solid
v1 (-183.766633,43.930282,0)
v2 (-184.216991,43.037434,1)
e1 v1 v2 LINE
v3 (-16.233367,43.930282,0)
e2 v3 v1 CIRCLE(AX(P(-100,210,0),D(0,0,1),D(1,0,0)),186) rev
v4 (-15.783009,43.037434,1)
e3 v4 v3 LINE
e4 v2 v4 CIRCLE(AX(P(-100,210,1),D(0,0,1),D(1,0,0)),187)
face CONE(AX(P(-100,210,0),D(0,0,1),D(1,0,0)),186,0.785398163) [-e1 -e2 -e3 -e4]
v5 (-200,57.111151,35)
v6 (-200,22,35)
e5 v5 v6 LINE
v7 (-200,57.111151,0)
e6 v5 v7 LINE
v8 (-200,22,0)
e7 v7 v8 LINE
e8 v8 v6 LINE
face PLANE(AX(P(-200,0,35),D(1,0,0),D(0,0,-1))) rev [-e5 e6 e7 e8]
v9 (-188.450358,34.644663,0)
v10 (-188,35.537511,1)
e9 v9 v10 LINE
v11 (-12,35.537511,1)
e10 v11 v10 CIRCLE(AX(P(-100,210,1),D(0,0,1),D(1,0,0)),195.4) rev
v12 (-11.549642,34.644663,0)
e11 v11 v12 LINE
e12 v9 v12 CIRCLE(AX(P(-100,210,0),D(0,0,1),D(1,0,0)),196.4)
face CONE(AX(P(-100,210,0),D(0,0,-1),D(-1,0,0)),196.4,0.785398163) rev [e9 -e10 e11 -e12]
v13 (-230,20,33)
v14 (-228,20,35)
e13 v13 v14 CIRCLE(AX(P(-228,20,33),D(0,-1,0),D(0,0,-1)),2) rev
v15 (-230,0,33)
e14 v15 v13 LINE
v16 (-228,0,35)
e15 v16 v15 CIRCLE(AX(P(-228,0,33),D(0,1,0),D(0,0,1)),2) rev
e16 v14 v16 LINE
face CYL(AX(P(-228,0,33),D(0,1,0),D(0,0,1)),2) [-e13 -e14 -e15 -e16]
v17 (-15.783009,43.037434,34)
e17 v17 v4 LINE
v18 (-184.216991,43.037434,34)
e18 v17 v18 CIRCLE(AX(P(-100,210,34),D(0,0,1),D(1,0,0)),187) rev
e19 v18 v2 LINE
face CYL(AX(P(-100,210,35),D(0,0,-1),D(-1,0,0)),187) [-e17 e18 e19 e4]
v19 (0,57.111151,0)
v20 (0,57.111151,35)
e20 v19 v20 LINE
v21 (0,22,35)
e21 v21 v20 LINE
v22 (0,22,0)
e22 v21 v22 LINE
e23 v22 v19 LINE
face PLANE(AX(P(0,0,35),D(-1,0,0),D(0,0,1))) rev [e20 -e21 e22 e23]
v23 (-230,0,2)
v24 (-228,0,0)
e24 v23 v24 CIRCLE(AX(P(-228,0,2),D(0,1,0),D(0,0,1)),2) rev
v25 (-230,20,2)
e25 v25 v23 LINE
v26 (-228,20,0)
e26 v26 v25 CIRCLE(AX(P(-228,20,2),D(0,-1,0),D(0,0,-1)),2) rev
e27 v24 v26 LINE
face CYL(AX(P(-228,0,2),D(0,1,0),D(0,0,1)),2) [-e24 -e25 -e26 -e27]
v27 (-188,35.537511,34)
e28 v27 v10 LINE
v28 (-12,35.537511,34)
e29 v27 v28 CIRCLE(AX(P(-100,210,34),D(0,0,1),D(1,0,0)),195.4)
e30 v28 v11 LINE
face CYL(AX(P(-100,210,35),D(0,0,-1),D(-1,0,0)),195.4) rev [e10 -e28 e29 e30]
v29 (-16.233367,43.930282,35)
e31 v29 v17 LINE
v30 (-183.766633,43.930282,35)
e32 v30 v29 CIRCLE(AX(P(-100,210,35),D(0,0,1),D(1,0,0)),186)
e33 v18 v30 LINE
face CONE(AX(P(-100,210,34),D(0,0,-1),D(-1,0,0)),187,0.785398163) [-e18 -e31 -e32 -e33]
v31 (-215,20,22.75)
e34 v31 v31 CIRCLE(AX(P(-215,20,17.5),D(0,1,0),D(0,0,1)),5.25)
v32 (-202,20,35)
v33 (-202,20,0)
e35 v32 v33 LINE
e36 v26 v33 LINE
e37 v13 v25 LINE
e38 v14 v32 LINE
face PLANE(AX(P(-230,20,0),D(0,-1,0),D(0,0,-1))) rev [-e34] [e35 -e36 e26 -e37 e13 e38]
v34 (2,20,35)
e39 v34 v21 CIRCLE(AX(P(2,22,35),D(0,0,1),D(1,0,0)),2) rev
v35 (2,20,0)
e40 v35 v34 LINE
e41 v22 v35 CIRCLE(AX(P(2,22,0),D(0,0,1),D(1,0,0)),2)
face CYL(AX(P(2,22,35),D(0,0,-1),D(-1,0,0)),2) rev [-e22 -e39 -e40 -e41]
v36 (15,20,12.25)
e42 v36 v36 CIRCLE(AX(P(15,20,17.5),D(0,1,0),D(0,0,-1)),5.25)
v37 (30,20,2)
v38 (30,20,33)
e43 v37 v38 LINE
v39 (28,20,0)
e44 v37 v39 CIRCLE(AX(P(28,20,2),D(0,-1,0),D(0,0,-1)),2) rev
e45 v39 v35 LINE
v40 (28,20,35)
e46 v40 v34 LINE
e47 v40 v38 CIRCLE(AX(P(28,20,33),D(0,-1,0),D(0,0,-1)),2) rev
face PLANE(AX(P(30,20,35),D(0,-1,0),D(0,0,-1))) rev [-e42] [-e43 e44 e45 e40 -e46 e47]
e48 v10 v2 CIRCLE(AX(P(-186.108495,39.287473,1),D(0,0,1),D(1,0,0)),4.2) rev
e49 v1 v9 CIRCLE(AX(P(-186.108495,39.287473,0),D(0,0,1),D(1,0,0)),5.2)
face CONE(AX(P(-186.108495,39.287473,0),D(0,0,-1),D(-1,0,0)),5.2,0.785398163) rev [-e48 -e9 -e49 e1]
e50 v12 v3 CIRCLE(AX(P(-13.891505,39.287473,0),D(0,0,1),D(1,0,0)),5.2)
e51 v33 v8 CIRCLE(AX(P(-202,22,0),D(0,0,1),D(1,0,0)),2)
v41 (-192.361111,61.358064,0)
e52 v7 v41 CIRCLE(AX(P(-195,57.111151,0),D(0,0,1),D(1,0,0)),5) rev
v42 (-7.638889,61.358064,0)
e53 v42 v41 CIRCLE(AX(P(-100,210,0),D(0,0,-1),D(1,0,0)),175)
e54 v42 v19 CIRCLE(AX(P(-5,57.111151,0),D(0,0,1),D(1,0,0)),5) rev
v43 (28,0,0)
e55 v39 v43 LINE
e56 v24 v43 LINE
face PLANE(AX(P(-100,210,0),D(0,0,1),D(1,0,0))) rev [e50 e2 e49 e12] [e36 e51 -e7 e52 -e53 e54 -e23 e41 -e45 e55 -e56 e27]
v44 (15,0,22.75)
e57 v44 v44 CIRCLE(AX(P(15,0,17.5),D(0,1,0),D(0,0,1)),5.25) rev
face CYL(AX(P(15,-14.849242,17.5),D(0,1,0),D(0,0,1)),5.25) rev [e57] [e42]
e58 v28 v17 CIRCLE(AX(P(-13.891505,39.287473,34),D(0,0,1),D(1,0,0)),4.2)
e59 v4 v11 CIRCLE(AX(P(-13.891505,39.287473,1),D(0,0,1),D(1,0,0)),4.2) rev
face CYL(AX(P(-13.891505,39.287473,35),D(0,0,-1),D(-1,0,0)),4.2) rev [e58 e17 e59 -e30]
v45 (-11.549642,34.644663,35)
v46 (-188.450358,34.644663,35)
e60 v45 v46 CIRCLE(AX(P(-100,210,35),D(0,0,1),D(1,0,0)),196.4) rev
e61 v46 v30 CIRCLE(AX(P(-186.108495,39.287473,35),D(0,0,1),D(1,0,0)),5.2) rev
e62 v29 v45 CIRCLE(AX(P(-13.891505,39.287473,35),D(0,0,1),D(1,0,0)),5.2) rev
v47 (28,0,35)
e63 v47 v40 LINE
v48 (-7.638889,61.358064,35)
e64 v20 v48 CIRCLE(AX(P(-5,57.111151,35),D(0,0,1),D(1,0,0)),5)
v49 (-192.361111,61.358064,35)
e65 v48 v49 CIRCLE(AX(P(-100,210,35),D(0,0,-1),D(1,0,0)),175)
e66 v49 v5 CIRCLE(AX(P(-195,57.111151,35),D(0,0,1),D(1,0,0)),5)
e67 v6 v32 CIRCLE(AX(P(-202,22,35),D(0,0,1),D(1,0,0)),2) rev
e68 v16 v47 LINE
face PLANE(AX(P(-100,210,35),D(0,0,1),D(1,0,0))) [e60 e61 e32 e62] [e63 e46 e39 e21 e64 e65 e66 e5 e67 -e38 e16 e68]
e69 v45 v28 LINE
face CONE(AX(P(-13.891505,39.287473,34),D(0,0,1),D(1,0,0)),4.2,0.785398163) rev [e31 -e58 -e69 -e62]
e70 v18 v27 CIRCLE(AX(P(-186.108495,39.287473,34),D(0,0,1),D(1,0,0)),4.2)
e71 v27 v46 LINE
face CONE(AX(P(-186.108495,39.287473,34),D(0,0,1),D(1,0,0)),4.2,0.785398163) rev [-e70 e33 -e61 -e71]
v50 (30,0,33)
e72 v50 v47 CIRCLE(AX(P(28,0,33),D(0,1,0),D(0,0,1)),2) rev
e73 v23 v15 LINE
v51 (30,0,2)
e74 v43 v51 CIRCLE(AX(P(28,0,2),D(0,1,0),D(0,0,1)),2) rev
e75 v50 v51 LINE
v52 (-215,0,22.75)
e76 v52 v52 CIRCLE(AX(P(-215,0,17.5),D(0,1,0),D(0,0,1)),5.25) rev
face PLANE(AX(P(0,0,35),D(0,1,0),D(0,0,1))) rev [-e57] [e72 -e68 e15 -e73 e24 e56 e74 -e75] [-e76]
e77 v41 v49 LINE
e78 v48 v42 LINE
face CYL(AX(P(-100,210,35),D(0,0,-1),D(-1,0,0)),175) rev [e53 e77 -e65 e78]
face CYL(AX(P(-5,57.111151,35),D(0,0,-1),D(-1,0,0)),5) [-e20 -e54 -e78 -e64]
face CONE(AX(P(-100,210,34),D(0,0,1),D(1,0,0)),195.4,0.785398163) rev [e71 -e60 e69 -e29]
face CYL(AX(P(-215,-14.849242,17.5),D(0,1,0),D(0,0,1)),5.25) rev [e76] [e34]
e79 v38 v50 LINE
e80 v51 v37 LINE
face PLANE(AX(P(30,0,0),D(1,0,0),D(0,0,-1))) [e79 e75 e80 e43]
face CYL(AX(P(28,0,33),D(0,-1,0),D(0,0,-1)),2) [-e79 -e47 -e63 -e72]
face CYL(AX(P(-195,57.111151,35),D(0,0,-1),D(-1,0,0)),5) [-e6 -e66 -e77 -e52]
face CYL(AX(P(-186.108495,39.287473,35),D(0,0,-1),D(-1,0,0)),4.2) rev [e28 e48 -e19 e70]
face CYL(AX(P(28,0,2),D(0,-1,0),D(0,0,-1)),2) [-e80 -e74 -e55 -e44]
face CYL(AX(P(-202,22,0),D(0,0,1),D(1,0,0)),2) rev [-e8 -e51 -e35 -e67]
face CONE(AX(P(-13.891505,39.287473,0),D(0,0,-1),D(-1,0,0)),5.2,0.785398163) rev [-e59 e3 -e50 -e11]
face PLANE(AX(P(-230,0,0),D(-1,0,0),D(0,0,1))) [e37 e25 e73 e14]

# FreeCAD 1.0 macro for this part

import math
import FreeCAD as App
import Part
import Sketcher

V = App.Vector


def edges_at(feature, points):
    """Names of the edges that pass closest to the given points."""
    edges = feature.Shape.Edges
    near = lambda p: min(range(len(edges)), key=lambda i: edges[i].distToShape(Part.Vertex(*p))[0])
    return sorted({f"Edge{near(p) + 1}" for p in points})

doc = App.newDocument("Part")
body = doc.addObject("PartDesign::Body", "Body")

# Sketch on XY plane
sketch1 = doc.addObject("Sketcher::SketchObject", "Sketch")
body.addObject(sketch1)
sketch1.AttachmentSupport = (doc.XY_Plane, [""])
sketch1.MapMode = "FlatFace"
sketch1.addGeometry(Part.LineSegment(V(-200, 0, 0), V(0, 0, 0)), False)
sketch1.addGeometry(Part.LineSegment(V(0, 0, 0), V(0, 66.4, 0)), False)
sketch1.addGeometry(Part.ArcOfCircle(Part.Circle(V(-100, 210, 0), V(0, 0, 1), 175), math.radians(-125), math.radians(-55)), False)
sketch1.addGeometry(Part.LineSegment(V(-200, 66.4, 0), V(-200, 0, 0)), False)
sketch1.addGeometry(Part.ArcOfCircle(Part.Circle(V(-100, 210, 0), V(0, 0, 1), 187), math.radians(-117), math.radians(-63)), False)
sketch1.addGeometry(Part.ArcOfCircle(Part.Circle(V(-13.9, 39.3, 0), V(0, 0, 1), 4.2), math.radians(-63), math.radians(117)), False)
sketch1.addGeometry(Part.ArcOfCircle(Part.Circle(V(-100, 210, 0), V(0, 0, 1), 195.4), math.radians(-117), math.radians(-63)), False)
sketch1.addGeometry(Part.ArcOfCircle(Part.Circle(V(-186.1, 39.3, 0), V(0, 0, 1), 4.2), math.radians(63), math.radians(243)), False)
sketch1.addConstraint(Sketcher.Constraint("Coincident", 0, 2, 1, 1))
sketch1.addConstraint(Sketcher.Constraint("Coincident", 1, 2, 2, 2))
sketch1.addConstraint(Sketcher.Constraint("Coincident", 2, 1, 3, 1))
sketch1.addConstraint(Sketcher.Constraint("Coincident", 3, 2, 0, 1))
sketch1.addConstraint(Sketcher.Constraint("Tangent", 4, 2, 5, 2))
sketch1.addConstraint(Sketcher.Constraint("Tangent", 5, 1, 6, 2))
sketch1.addConstraint(Sketcher.Constraint("Tangent", 6, 1, 7, 2))
sketch1.addConstraint(Sketcher.Constraint("Tangent", 7, 1, 4, 1))
sketch1.addConstraint(Sketcher.Constraint("Horizontal", 0))
sketch1.addConstraint(Sketcher.Constraint("Vertical", 1))
sketch1.addConstraint(Sketcher.Constraint("Vertical", 3))
sketch1.addConstraint(Sketcher.Constraint("Coincident", 0, 2, -1, 1))
sketch1.addConstraint(Sketcher.Constraint("Coincident", 4, 3, 2, 3))
sketch1.addConstraint(Sketcher.Constraint("Coincident", 6, 3, 2, 3))
sketch1.addConstraint(Sketcher.Constraint("Horizontal", 5, 3, 7, 3))
sketch1.addConstraint(Sketcher.Constraint("Horizontal", 1, 2, 2, 1))
sketch1.addConstraint(Sketcher.Constraint("Radius", 2, 175.0))
sketch1.addConstraint(Sketcher.Constraint("Radius", 4, 187.0))
sketch1.addConstraint(Sketcher.Constraint("Radius", 5, 4.2))
sketch1.addConstraint(Sketcher.Constraint("DistanceX", 0, 1, 0, 2, 200.0))
sketch1.addConstraint(Sketcher.Constraint("DistanceY", -1, 1, 2, 3, 210.0))
sketch1.addConstraint(Sketcher.Constraint("DistanceX", 5, 1, -1, 1, 12.0))
pad1 = doc.addObject("PartDesign::Pad", "Pad")
body.addObject(pad1)
pad1.Profile = sketch1
pad1.Length = 35
doc.recompute()

fillet = doc.addObject("PartDesign::Fillet", "Fillet")
body.addObject(fillet)
fillet.Base = (pad1, edges_at(pad1, [(-200, 66.386, 17.5), (0, 66.386, 17.5)]))
fillet.Radius = 5
doc.recompute()

chamfer = doc.addObject("PartDesign::Chamfer", "Chamfer")
body.addObject(chamfer)
chamfer.Base = (fillet, edges_at(fillet, [
    (-189.858, 41.179, 0),
    (-100, 14.6, 0),
    (-10.142, 41.179, 0),
    (-100, 23, 0),
    (-189.858, 41.179, 35),
    (-100, 14.6, 35),
    (-10.142, 41.179, 35),
    (-100, 23, 35),
]))
chamfer.Size = 1

# Sketch on YZ plane
sketch2 = doc.addObject("Sketcher::SketchObject", "Sketch001")
body.addObject(sketch2)
sketch2.AttachmentSupport = (doc.YZ_Plane, [""])
sketch2.MapMode = "FlatFace"
sketch2.addGeometry(Part.LineSegment(V(20, 35, 0), V(0, 35, 0)), False)
sketch2.addGeometry(Part.LineSegment(V(0, 35, 0), V(0, 0, 0)), False)
sketch2.addGeometry(Part.LineSegment(V(0, 0, 0), V(20, 0, 0)), False)
sketch2.addGeometry(Part.LineSegment(V(20, 0, 0), V(20, 35, 0)), False)
sketch2.addConstraint(Sketcher.Constraint("Coincident", 0, 2, 1, 1))
sketch2.addConstraint(Sketcher.Constraint("Coincident", 1, 2, 2, 1))
sketch2.addConstraint(Sketcher.Constraint("Coincident", 2, 2, 3, 1))
sketch2.addConstraint(Sketcher.Constraint("Coincident", 3, 2, 0, 1))
sketch2.addConstraint(Sketcher.Constraint("Horizontal", 0))
sketch2.addConstraint(Sketcher.Constraint("Vertical", 1))
sketch2.addConstraint(Sketcher.Constraint("Horizontal", 2))
sketch2.addConstraint(Sketcher.Constraint("Vertical", 3))
sketch2.addConstraint(Sketcher.Constraint("Coincident", 1, 2, -1, 1))
sketch2.addConstraint(Sketcher.Constraint("DistanceX", 0, 2, 0, 1, 20.0))
sketch2.addConstraint(Sketcher.Constraint("DistanceY", 1, 2, 1, 1, 35.0))
pad2 = doc.addObject("PartDesign::Pad", "Pad001")
body.addObject(pad2)
pad2.Profile = sketch2
pad2.Length = 30
doc.recompute()

fillet2 = doc.addObject("PartDesign::Fillet", "Fillet001")
body.addObject(fillet2)
fillet2.Base = (pad2, edges_at(pad2, [(0, 20, 17.5)]))
fillet2.Radius = 2

# Sketch on YZ plane
sketch3 = doc.addObject("Sketcher::SketchObject", "Sketch002")
body.addObject(sketch3)
sketch3.AttachmentSupport = (doc.YZ_Plane, [""])
sketch3.MapMode = "FlatFace"
sketch3.AttachmentOffset = App.Placement(V(0, 0, -200), App.Rotation())
sketch3.addGeometry(Part.LineSegment(V(20, 0, 0), V(0, 0, 0)), False)
sketch3.addGeometry(Part.LineSegment(V(0, 0, 0), V(0, 35, 0)), False)
sketch3.addGeometry(Part.LineSegment(V(0, 35, 0), V(20, 35, 0)), False)
sketch3.addGeometry(Part.LineSegment(V(20, 35, 0), V(20, 0, 0)), False)
sketch3.addConstraint(Sketcher.Constraint("Coincident", 0, 2, 1, 1))
sketch3.addConstraint(Sketcher.Constraint("Coincident", 1, 2, 2, 1))
sketch3.addConstraint(Sketcher.Constraint("Coincident", 2, 2, 3, 1))
sketch3.addConstraint(Sketcher.Constraint("Coincident", 3, 2, 0, 1))
sketch3.addConstraint(Sketcher.Constraint("Horizontal", 0))
sketch3.addConstraint(Sketcher.Constraint("Vertical", 1))
sketch3.addConstraint(Sketcher.Constraint("Horizontal", 2))
sketch3.addConstraint(Sketcher.Constraint("Vertical", 3))
sketch3.addConstraint(Sketcher.Constraint("Coincident", 0, 2, -1, 1))
sketch3.addConstraint(Sketcher.Constraint("DistanceX", 0, 2, 0, 1, 20.0))
sketch3.addConstraint(Sketcher.Constraint("DistanceY", 1, 1, 1, 2, 35.0))
pad3 = doc.addObject("PartDesign::Pad", "Pad002")
body.addObject(pad3)
pad3.Profile = sketch3
pad3.Length = 30
pad3.Reversed = True
doc.recompute()

fillet3 = doc.addObject("PartDesign::Fillet", "Fillet002")
body.addObject(fillet3)
fillet3.Base = (pad3, edges_at(pad3, [(-200, 20, 17.5)]))
fillet3.Radius = 2
doc.recompute()

fillet4 = doc.addObject("PartDesign::Fillet", "Fillet003")
body.addObject(fillet4)
fillet4.Base = (fillet3, edges_at(fillet3, [
    (30, 10, 35),
    (30, 10, 0),
    (-230, 10, 0),
    (-230, 10, 35),
]))
fillet4.Radius = 2

# Sketch on XZ plane
sketch4 = doc.addObject("Sketcher::SketchObject", "Sketch003")
body.addObject(sketch4)
sketch4.AttachmentSupport = (doc.XZ_Plane, [""])
sketch4.MapMode = "FlatFace"
sketch4.AttachmentOffset = App.Placement(V(0, 0, -20), App.Rotation())
sketch4.addGeometry(Part.Circle(V(-215, 18, 0), V(0, 0, 1), 5), False)
sketch4.addGeometry(Part.Circle(V(15, 18, 0), V(0, 0, 1), 5), False)
sketch4.addConstraint(Sketcher.Constraint("Equal", 0, 1))
sketch4.addConstraint(Sketcher.Constraint("Horizontal", 0, 3, 1, 3))
sketch4.addConstraint(Sketcher.Constraint("Diameter", 0, 10.5))
sketch4.addConstraint(Sketcher.Constraint("DistanceX", 0, 3, -1, 1, 215.0))
sketch4.addConstraint(Sketcher.Constraint("DistanceX", -1, 1, 1, 3, 15.0))
sketch4.addConstraint(Sketcher.Constraint("DistanceY", -1, 1, 0, 3, 17.5))
pocket1 = doc.addObject("PartDesign::Pocket", "Pocket")
body.addObject(pocket1)
pocket1.Profile = sketch4
pocket1.Length = 20
pocket1.Reversed = True

doc.recompute()
